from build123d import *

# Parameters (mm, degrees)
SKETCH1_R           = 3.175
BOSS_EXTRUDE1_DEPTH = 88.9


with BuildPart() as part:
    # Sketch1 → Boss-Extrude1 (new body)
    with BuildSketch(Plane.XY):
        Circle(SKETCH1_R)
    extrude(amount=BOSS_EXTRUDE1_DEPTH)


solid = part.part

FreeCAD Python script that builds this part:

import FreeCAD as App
import Part
import Sketcher
Q = App.Units.Quantity

doc = App.newDocument("Part")
body = doc.addObject("PartDesign::Body", "Body")

# Sketch on XY plane
sketch1 = doc.addObject("Sketcher::SketchObject", "Sketch")
body.addObject(sketch1)
sketch1.AttachmentSupport = (doc.XY_Plane, [""])
sketch1.MapMode = "FlatFace"
sketch1.addGeometry(Part.Circle(App.Vector(0, 0, 0), App.Vector(0, 0, 1), 3.175), False)
sketch1.addConstraint([
    Sketcher.Constraint("Coincident", 0, 3, -1, 1),
    Sketcher.Constraint("Diameter", 0, Q("0.25 in")),
])
pad1 = doc.addObject("PartDesign::Pad", "Pad")
body.addObject(pad1)
pad1.Profile = sketch1
pad1.Length = Q("3.5 in")

doc.recompute()
